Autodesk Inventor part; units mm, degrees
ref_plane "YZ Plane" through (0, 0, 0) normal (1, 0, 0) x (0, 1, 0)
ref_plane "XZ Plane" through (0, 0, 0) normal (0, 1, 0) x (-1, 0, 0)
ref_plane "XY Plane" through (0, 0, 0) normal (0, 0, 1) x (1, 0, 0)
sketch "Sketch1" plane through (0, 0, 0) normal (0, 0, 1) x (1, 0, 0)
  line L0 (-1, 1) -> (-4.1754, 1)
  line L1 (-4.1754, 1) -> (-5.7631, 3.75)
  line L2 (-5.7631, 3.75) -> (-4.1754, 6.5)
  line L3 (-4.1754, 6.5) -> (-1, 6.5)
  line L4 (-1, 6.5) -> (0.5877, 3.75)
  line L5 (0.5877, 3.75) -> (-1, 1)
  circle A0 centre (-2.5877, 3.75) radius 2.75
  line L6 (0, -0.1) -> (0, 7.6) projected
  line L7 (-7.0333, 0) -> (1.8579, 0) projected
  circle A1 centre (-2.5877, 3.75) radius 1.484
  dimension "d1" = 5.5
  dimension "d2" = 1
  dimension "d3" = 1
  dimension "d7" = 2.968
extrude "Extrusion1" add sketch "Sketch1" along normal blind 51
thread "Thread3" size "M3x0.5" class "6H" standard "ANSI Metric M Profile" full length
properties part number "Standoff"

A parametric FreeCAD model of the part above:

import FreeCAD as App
import Part
import Sketcher
from FreeCAD import Vector
Q = App.Units.Quantity

doc = App.newDocument("Part")
params = doc.addObject("Spreadsheet::Sheet", "Params")
for row, (alias, value) in enumerate([
    ("pad1_length", "51 mm"),
], start=1):
    params.set(f"A{row}", alias)
    params.set(f"B{row}", "=" + value)
    params.setAlias(f"B{row}", alias)

body = doc.addObject("PartDesign::Body", "Body")

# Sketch on XY plane
sketch1 = body.newObject("Sketcher::SketchObject", "Sketch")
sketch1.AttachmentSupport = (doc.getObject("XY_Plane"), [""])
sketch1.MapMode = "FlatFace"
sketch1.addGeometry([
    Part.LineSegment(Vector(-1, 1, 0), Vector(0.6, 3.8, 0)),  # 0
    Part.LineSegment(Vector(0.6, 3.8, 0), Vector(-1, 6.5, 0)),  # 1
    Part.LineSegment(Vector(-1, 6.5, 0), Vector(-4.2, 6.5, 0)),  # 2
    Part.LineSegment(Vector(-4.2, 6.5, 0), Vector(-5.8, 3.8, 0)),  # 3
    Part.LineSegment(Vector(-5.8, 3.8, 0), Vector(-4.2, 1, 0)),  # 4
    Part.LineSegment(Vector(-4.2, 1, 0), Vector(-1, 1, 0)),  # 5
    Part.Circle(Vector(-2.6, 3.8, 0), Vector(0, 0, 1), 1.5),  # 6
], False)
sketch1.addConstraint([
    Sketcher.Constraint("Coincident", 0, 2, 1, 1),
    Sketcher.Constraint("Coincident", 1, 2, 2, 1),
    Sketcher.Constraint("Coincident", 2, 2, 3, 1),
    Sketcher.Constraint("Coincident", 3, 2, 4, 1),
    Sketcher.Constraint("Coincident", 4, 2, 5, 1),
    Sketcher.Constraint("Coincident", 5, 2, 0, 1),
    Sketcher.Constraint("Horizontal", 2),
    Sketcher.Constraint("Horizontal", 5),
    Sketcher.Constraint("Parallel", 0, 3),
    Sketcher.Constraint("Parallel", 1, 4),
    Sketcher.Constraint("Horizontal", 6, 3, 0, 2),
    Sketcher.Constraint("Horizontal", 0, 2, 3, 2),
    Sketcher.Constraint("Vertical", 2, 2, 4, 2),
    Sketcher.Constraint("Vertical", 1, 2, 5, 2),
    Sketcher.Constraint("Diameter", 6, 2.968),
    Sketcher.Constraint("DistanceX", 1, 2, -1, 1, 1.0),
    Sketcher.Constraint("DistanceY", -1, 1, 4, 2, 1.0),
    Sketcher.Constraint("DistanceY", 4, 2, 2, 2, 5.5),
    Sketcher.Constraint("Angle", 0, Q("60.0002 deg")),
    Sketcher.Constraint("DistanceX", 2, 2, 2, 1, 3.1754),
    Sketcher.Constraint("DistanceX", 6, 3, -1, 1, 2.5877),
])
pad1 = body.newObject("PartDesign::Pad", "Pad")
pad1.Profile = sketch1
pad1.setExpression("Length", "Params.pad1_length")

doc.recompute()
